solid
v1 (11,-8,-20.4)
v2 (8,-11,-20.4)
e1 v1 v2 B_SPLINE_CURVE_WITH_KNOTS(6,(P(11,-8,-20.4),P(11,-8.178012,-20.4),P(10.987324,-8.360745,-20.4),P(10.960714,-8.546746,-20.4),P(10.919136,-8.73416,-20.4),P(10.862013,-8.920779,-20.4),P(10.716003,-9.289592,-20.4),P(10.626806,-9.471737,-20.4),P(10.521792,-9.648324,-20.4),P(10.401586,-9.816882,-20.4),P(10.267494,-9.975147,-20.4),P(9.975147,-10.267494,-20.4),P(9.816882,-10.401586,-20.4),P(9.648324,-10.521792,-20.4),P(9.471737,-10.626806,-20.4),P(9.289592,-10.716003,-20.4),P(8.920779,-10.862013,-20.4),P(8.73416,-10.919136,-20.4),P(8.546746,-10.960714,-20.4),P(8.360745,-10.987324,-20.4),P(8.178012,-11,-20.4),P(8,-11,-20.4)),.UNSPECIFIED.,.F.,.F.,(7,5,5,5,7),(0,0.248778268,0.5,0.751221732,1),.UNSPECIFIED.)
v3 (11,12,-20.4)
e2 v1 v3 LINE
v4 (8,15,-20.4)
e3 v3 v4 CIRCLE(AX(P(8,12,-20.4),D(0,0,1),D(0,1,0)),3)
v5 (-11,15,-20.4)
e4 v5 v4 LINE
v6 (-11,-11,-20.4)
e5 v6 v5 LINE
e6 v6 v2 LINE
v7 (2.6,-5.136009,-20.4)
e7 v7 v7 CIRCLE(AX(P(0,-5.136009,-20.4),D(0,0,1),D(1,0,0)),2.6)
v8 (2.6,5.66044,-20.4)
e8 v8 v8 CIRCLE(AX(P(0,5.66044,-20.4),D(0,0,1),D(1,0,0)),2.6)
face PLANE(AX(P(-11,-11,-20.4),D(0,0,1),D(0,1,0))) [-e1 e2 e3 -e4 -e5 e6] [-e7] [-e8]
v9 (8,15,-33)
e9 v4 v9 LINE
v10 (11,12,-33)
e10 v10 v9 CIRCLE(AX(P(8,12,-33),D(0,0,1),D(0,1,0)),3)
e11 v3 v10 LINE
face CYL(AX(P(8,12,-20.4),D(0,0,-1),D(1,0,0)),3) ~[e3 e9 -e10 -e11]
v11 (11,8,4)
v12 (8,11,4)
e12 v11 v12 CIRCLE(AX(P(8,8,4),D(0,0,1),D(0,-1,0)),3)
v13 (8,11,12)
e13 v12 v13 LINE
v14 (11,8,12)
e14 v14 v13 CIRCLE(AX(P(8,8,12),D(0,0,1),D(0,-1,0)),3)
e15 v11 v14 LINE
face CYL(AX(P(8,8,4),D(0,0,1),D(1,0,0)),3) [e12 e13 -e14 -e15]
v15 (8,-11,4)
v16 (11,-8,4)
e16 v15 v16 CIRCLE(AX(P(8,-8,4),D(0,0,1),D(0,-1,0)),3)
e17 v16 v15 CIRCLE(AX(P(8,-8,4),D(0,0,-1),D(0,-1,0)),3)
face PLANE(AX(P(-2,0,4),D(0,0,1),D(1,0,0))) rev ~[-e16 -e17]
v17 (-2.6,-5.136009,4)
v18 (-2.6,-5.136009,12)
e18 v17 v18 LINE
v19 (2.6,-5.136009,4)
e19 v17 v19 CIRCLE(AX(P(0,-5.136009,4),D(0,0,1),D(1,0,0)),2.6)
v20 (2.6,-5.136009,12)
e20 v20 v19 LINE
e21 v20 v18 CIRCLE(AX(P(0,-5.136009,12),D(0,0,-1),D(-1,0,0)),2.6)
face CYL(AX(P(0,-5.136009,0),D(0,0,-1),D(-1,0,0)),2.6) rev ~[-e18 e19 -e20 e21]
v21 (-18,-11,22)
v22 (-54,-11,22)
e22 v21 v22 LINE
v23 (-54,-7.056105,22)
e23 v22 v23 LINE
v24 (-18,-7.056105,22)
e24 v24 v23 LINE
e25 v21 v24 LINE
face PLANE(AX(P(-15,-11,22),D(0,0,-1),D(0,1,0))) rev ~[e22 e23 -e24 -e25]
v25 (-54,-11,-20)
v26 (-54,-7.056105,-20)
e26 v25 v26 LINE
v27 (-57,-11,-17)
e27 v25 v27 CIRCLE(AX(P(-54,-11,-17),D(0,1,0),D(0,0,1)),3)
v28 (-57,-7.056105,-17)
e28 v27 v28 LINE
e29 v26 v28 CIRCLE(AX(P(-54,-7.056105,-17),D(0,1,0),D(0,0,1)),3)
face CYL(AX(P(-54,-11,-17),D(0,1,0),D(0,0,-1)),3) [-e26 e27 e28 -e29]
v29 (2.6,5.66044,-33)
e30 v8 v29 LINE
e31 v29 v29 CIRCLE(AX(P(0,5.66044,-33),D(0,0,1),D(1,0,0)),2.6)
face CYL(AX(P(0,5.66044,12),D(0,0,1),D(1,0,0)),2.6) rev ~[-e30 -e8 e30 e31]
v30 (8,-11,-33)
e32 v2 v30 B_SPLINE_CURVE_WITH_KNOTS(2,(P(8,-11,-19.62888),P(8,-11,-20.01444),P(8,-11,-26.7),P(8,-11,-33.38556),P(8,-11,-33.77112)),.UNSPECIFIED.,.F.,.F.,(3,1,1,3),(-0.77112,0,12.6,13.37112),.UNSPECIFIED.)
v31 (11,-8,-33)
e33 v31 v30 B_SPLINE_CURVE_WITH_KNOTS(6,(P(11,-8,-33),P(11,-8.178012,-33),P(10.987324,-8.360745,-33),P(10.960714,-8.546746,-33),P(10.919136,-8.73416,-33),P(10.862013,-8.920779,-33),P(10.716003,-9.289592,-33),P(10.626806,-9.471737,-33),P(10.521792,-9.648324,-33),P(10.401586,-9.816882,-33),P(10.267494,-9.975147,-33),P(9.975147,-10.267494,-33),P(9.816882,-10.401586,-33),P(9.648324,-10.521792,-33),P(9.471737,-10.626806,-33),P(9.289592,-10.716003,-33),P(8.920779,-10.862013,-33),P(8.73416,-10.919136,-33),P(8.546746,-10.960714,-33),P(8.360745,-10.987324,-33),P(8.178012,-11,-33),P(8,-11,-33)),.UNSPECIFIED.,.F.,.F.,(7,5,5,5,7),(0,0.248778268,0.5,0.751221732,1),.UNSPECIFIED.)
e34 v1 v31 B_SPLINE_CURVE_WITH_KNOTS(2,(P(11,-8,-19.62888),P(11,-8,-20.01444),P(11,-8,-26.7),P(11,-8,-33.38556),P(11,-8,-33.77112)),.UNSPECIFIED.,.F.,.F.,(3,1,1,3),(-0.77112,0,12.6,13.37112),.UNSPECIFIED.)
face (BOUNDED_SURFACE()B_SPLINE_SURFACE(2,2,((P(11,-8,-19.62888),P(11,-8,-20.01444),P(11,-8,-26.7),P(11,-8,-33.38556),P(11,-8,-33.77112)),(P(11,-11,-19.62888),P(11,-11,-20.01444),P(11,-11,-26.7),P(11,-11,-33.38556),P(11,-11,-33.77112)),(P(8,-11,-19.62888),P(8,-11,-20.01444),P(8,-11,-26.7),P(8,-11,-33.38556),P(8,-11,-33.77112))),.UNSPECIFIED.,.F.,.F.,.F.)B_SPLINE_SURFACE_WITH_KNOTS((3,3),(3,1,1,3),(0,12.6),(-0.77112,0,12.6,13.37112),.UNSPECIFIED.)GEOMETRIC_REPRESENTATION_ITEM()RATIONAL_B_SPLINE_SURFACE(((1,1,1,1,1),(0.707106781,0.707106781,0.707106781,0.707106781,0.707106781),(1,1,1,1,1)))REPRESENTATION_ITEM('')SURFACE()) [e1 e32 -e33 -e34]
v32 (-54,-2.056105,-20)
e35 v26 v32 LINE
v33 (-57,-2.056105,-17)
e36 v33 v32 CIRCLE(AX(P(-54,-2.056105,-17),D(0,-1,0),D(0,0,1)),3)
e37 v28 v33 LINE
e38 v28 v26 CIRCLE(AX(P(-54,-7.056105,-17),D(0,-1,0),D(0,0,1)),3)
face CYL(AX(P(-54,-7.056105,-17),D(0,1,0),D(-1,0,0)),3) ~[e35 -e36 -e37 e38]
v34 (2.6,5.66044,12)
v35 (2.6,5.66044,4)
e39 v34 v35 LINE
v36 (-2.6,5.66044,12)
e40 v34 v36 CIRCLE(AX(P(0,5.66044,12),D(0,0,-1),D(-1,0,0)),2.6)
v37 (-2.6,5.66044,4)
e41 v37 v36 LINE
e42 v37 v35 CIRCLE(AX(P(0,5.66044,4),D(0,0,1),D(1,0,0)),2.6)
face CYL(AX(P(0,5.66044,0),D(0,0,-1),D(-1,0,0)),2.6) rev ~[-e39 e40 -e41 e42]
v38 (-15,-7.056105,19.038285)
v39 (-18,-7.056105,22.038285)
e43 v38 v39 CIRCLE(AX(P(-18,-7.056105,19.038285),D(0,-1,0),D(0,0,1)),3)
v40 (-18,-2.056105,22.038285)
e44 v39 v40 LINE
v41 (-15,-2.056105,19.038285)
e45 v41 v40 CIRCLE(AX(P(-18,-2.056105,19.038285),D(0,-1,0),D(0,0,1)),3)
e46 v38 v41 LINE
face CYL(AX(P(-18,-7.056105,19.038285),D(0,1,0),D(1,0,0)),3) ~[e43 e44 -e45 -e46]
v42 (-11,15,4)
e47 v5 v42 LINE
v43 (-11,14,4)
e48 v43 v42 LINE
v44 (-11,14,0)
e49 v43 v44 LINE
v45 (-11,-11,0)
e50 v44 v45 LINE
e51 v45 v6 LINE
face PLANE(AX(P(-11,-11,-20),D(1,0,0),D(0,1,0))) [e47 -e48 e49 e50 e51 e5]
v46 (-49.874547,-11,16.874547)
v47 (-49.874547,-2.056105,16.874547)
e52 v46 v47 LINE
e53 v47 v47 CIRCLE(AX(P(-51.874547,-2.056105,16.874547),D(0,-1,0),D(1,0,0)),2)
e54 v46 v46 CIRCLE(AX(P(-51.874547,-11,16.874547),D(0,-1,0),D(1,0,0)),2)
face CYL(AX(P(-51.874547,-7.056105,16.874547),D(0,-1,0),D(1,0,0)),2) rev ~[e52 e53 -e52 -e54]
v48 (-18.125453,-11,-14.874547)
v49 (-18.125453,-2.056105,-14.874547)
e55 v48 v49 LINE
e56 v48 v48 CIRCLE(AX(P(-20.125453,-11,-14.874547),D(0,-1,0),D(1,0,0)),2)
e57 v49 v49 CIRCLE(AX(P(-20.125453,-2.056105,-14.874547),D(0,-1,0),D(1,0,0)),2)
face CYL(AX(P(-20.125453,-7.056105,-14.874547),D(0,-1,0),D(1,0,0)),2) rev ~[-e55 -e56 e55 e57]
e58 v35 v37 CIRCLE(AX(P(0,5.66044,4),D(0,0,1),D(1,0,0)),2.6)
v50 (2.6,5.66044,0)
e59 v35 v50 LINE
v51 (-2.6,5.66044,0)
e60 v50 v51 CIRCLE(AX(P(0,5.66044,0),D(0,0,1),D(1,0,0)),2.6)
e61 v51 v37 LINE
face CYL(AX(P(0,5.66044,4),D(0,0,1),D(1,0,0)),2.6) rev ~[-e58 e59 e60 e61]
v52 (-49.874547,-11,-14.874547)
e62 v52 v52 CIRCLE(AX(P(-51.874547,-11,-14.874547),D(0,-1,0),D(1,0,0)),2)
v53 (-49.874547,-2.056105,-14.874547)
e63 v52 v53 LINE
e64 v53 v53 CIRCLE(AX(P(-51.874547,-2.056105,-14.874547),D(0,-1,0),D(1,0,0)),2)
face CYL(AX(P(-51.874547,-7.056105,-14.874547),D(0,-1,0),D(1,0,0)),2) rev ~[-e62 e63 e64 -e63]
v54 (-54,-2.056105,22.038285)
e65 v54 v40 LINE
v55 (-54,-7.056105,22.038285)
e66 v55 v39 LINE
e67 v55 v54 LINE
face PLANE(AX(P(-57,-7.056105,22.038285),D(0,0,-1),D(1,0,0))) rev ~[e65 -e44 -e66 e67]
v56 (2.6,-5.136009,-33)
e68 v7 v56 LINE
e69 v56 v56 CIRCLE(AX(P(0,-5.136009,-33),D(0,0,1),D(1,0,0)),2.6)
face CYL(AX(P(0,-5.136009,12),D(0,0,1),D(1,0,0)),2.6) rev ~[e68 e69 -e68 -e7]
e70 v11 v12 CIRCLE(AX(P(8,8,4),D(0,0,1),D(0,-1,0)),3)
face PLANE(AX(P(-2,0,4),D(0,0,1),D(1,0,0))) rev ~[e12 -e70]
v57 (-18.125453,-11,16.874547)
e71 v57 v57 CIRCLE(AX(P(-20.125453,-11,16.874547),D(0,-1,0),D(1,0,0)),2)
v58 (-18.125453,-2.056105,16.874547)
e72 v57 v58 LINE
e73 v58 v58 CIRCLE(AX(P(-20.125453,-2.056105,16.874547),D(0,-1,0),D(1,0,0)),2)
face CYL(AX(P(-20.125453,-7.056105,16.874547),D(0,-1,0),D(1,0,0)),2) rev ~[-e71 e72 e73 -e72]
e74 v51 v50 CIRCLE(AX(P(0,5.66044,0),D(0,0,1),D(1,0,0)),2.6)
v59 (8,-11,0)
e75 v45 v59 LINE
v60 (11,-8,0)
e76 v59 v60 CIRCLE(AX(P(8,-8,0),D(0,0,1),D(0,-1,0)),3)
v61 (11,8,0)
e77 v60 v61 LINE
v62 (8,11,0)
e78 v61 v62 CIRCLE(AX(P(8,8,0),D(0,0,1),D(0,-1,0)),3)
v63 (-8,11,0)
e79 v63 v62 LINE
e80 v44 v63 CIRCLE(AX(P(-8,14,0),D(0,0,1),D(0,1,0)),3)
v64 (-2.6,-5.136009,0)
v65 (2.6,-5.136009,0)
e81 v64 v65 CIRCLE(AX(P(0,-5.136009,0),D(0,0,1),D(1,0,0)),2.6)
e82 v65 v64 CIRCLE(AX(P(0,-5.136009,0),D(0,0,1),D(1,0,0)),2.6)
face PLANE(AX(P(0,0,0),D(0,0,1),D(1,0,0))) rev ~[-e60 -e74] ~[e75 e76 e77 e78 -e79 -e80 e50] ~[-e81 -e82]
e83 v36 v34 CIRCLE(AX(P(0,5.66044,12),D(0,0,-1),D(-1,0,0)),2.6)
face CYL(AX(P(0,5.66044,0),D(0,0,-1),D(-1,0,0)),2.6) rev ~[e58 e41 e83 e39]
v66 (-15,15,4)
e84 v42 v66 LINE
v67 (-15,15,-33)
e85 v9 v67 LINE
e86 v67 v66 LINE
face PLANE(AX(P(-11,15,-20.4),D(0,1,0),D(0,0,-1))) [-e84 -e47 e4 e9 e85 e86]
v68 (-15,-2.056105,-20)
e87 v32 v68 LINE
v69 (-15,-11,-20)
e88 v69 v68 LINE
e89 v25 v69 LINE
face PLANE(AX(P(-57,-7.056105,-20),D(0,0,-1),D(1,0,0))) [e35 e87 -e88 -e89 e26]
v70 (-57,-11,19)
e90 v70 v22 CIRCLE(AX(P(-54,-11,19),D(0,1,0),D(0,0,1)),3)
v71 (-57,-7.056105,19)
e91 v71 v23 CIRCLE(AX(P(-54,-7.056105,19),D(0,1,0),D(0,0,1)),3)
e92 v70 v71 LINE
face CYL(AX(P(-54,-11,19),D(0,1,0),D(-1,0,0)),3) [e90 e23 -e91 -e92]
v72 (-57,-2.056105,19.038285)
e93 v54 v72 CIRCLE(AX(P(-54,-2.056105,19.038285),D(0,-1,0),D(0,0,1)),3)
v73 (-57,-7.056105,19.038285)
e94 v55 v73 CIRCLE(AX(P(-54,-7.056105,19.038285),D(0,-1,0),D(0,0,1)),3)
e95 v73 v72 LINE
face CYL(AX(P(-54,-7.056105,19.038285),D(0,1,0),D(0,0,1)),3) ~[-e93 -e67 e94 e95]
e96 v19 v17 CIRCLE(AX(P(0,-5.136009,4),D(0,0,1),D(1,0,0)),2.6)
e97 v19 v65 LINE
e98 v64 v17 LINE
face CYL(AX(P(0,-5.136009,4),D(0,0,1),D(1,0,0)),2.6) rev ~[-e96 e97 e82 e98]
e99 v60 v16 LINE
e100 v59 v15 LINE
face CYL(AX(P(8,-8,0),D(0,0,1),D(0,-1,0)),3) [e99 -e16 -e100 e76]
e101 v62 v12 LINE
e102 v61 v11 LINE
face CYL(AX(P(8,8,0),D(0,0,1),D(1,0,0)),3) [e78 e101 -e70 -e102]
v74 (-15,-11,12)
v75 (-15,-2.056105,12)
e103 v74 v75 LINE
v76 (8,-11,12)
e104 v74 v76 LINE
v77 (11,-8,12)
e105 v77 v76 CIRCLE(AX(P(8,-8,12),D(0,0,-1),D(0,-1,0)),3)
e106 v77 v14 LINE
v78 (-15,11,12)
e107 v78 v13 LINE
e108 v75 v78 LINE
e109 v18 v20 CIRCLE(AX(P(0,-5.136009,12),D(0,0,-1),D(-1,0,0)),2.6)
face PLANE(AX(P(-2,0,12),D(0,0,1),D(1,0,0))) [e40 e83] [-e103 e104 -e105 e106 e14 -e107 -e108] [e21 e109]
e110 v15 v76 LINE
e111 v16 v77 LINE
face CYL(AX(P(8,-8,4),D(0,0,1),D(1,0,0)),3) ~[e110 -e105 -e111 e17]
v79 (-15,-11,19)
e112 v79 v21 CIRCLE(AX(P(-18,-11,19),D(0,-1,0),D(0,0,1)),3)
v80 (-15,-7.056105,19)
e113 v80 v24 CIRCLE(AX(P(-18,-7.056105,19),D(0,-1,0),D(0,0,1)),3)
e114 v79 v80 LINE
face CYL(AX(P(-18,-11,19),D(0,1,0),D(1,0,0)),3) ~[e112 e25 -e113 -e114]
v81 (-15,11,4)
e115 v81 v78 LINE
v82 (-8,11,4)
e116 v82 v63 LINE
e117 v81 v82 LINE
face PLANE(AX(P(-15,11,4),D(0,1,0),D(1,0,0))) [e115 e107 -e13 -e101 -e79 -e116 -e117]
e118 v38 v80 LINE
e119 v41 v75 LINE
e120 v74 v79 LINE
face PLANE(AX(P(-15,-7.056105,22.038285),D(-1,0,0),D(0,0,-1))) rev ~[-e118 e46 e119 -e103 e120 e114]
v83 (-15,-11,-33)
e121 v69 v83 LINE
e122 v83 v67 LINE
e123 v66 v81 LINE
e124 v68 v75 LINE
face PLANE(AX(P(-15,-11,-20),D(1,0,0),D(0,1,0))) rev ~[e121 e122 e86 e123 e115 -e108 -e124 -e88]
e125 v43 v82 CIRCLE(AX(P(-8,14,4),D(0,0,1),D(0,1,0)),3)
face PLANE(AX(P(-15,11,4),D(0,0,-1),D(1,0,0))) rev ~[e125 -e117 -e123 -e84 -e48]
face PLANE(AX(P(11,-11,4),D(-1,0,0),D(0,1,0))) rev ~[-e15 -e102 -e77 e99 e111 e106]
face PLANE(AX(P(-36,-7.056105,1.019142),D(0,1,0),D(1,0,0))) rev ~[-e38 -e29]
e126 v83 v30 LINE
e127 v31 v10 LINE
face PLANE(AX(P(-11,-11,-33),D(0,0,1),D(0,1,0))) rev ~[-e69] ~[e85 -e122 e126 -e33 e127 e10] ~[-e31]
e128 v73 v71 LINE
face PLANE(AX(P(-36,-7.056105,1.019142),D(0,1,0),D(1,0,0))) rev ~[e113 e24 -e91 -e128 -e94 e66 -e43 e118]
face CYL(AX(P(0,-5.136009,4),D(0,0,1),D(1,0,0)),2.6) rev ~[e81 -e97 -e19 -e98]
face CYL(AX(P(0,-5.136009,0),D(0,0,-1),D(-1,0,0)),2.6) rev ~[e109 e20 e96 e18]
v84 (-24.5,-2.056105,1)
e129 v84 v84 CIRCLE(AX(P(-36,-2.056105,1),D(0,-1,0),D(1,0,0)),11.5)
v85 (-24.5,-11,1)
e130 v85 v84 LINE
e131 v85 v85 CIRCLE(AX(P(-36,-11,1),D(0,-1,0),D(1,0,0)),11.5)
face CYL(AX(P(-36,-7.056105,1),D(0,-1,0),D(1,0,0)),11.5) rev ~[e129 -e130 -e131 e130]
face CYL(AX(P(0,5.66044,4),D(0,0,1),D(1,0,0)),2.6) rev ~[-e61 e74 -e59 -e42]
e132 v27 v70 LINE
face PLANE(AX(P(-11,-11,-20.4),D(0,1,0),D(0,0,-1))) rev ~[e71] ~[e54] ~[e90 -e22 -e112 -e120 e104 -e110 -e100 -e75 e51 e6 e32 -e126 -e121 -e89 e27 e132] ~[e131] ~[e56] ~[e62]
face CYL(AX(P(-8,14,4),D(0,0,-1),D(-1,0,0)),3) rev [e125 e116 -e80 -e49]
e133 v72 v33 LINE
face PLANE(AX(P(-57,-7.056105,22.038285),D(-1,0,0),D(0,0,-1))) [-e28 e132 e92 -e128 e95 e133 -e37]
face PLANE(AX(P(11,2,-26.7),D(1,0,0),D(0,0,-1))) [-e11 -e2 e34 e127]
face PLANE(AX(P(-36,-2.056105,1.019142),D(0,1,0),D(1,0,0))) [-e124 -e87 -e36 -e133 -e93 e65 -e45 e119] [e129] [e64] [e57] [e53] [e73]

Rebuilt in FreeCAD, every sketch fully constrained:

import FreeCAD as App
import Part
import Sketcher


def edges_at(feature, points):
    """Names of the edges that pass closest to the given points."""
    edges = feature.Shape.Edges
    near = lambda p: min(range(len(edges)), key=lambda i: edges[i].distToShape(Part.Vertex(*p))[0])
    return sorted({f"Edge{near(p) + 1}" for p in points})

doc = App.newDocument("Part")
body = doc.addObject("PartDesign::Body", "Body")

# Sketch on XY plane
sketch1 = body.newObject("Sketcher::SketchObject", "Sketch")
sketch1.AttachmentSupport = (doc.getObject("XY_Plane"), [""])
sketch1.MapMode = "FlatFace"
sketch1.addGeometry([
    Part.LineSegment(App.Vector(-11, 11, 0), App.Vector(-11, -11, 0)),
    Part.LineSegment(App.Vector(-11, -11, 0), App.Vector(11, -11, 0)),
    Part.LineSegment(App.Vector(11, -11, 0), App.Vector(11, 11, 0)),
    Part.LineSegment(App.Vector(11, 11, 0), App.Vector(-11, 11, 0)),
], False)
sketch1.addConstraint([
    Sketcher.Constraint("Coincident", 0, 2, 1, 1),
    Sketcher.Constraint("Coincident", 1, 2, 2, 1),
    Sketcher.Constraint("Coincident", 2, 2, 3, 1),
    Sketcher.Constraint("Coincident", 3, 2, 0, 1),
    Sketcher.Constraint("Vertical", 0),
    Sketcher.Constraint("Horizontal", 1),
    Sketcher.Constraint("Vertical", 2),
    Sketcher.Constraint("Horizontal", 3),
    Sketcher.Constraint("Symmetric", 0, 2, 2, 2, -1, 1),
    Sketcher.Constraint("Equal", 3, 0),
    Sketcher.Constraint("DistanceX", 1, 1, 1, 2, 22.0),
])
pad1 = body.newObject("PartDesign::Pad", "Pad")
pad1.Profile = sketch1
pad1.Length = 4

# Sketch on XY plane
sketch2 = body.newObject("Sketcher::SketchObject", "Sketch001")
sketch2.AttachmentSupport = (doc.getObject("XY_Plane"), [""])
sketch2.MapMode = "FlatFace"
sketch2.AttachmentOffset = App.Placement(App.Vector(0, 0, 4), App.Rotation())
sketch2.addGeometry([
    Part.LineSegment(App.Vector(-15, 11, 0), App.Vector(-15, -11, 0)),
    Part.LineSegment(App.Vector(-15, -11, 0), App.Vector(-11, -11, 0)),
    Part.LineSegment(App.Vector(-11, -11, 0), App.Vector(-11, 11, 0)),
    Part.LineSegment(App.Vector(-11, 11, 0), App.Vector(-15, 11, 0)),
], False)
sketch2.addConstraint([
    Sketcher.Constraint("Coincident", 0, 2, 1, 1),
    Sketcher.Constraint("Coincident", 1, 2, 2, 1),
    Sketcher.Constraint("Coincident", 2, 2, 3, 1),
    Sketcher.Constraint("Coincident", 3, 2, 0, 1),
    Sketcher.Constraint("Vertical", 0),
    Sketcher.Constraint("Horizontal", 1),
    Sketcher.Constraint("Vertical", 2),
    Sketcher.Constraint("Horizontal", 3),
    Sketcher.Constraint("DistanceX", 1, 1, 1, 2, 4.0),
    Sketcher.Constraint("DistanceY", 0, 2, 0, 1, 22.0),
    Sketcher.Constraint("DistanceX", 0, 2, -1, 1, 15.0),
    Sketcher.Constraint("DistanceY", 0, 2, -1, 1, 11.0),
])
pad2 = body.newObject("PartDesign::Pad", "Pad001")
pad2.Profile = sketch2
pad2.Length = 24
pad2.Reversed = True

# Sketch on XZ plane
sketch3 = body.newObject("Sketcher::SketchObject", "Sketch002")
sketch3.AttachmentSupport = (doc.getObject("XZ_Plane"), [""])
sketch3.MapMode = "FlatFace"
sketch3.AttachmentOffset = App.Placement(App.Vector(0, 0, -11), App.Rotation())
sketch3.addGeometry([
    Part.LineSegment(App.Vector(-15, -20, 0), App.Vector(-15, 4, 0)),
    Part.LineSegment(App.Vector(-15, 4, 0), App.Vector(-11, 4, 0)),
    Part.LineSegment(App.Vector(-11, 4, 0), App.Vector(-11, -20, 0)),
    Part.LineSegment(App.Vector(-11, -20, 0), App.Vector(-15, -20, 0)),
], False)
sketch3.addConstraint([
    Sketcher.Constraint("Coincident", 0, 2, 1, 1),
    Sketcher.Constraint("Coincident", 1, 2, 2, 1),
    Sketcher.Constraint("Coincident", 2, 2, 3, 1),
    Sketcher.Constraint("Coincident", 3, 2, 0, 1),
    Sketcher.Constraint("Vertical", 0),
    Sketcher.Constraint("Horizontal", 1),
    Sketcher.Constraint("Vertical", 2),
    Sketcher.Constraint("Horizontal", 3),
    Sketcher.Constraint("DistanceX", 1, 1, 1, 2, 4.0),
    Sketcher.Constraint("DistanceY", 0, 1, 0, 2, 24.0),
    Sketcher.Constraint("DistanceX", 0, 2, -1, 1, 15.0),
    Sketcher.Constraint("DistanceY", -1, 1, 0, 2, 4.0),
])
pad3 = body.newObject("PartDesign::Pad", "Pad002")
pad3.Profile = sketch3
pad3.Length = 4
pad3.Reversed = True

# Sketch on YZ plane
sketch4 = body.newObject("Sketcher::SketchObject", "Sketch003")
sketch4.AttachmentSupport = (doc.getObject("YZ_Plane"), [""])
sketch4.MapMode = "FlatFace"
sketch4.AttachmentOffset = App.Placement(App.Vector(0, 0, -11), App.Rotation())
sketch4.addGeometry([
    Part.LineSegment(App.Vector(15, 4, 0), App.Vector(11, 4, 0)),
    Part.LineSegment(App.Vector(11, 4, 0), App.Vector(11, -20, 0)),
    Part.LineSegment(App.Vector(11, -20, 0), App.Vector(15, -20, 0)),
    Part.LineSegment(App.Vector(15, -20, 0), App.Vector(15, 4, 0)),
], False)
sketch4.addConstraint([
    Sketcher.Constraint("Coincident", 0, 2, 1, 1),
    Sketcher.Constraint("Coincident", 1, 2, 2, 1),
    Sketcher.Constraint("Coincident", 2, 2, 3, 1),
    Sketcher.Constraint("Coincident", 3, 2, 0, 1),
    Sketcher.Constraint("Horizontal", 0),
    Sketcher.Constraint("Vertical", 1),
    Sketcher.Constraint("Horizontal", 2),
    Sketcher.Constraint("Vertical", 3),
    Sketcher.Constraint("DistanceX", 0, 2, 0, 1, 4.0),
    Sketcher.Constraint("DistanceY", 1, 2, 1, 1, 24.0),
    Sketcher.Constraint("DistanceX", -1, 1, 0, 2, 11.0),
    Sketcher.Constraint("DistanceY", -1, 1, 0, 2, 4.0),
])
pad4 = body.newObject("PartDesign::Pad", "Pad003")
pad4.Profile = sketch4
pad4.Length = 24
pad4.Reversed = True

# Sketch on YZ plane
sketch5 = body.newObject("Sketcher::SketchObject", "Sketch004")
sketch5.AttachmentSupport = (doc.getObject("YZ_Plane"), [""])
sketch5.MapMode = "FlatFace"
sketch5.AttachmentOffset = App.Placement(App.Vector(0, 0, -15), App.Rotation())
sketch5.addGeometry([
    Part.LineSegment(App.Vector(-7.1, -20, 0), App.Vector(-11, -20, 0)),
    Part.LineSegment(App.Vector(-11, -20, 0), App.Vector(-11, 22, 0)),
    Part.LineSegment(App.Vector(-11, 22, 0), App.Vector(-7.1, 22, 0)),
    Part.LineSegment(App.Vector(-7.1, 22, 0), App.Vector(-7.1, -20, 0)),
], False)
sketch5.addConstraint([
    Sketcher.Constraint("Coincident", 0, 2, 1, 1),
    Sketcher.Constraint("Coincident", 1, 2, 2, 1),
    Sketcher.Constraint("Coincident", 2, 2, 3, 1),
    Sketcher.Constraint("Coincident", 3, 2, 0, 1),
    Sketcher.Constraint("Horizontal", 0),
    Sketcher.Constraint("Vertical", 1),
    Sketcher.Constraint("Horizontal", 2),
    Sketcher.Constraint("Vertical", 3),
    Sketcher.Constraint("DistanceY", 1, 1, 1, 2, 42.0),
    Sketcher.Constraint("DistanceX", 0, 2, -1, 1, 11.0),
    Sketcher.Constraint("DistanceY", 0, 2, -1, 1, 20.0),
    Sketcher.Constraint("DistanceX", 0, 2, 0, 1, 3.943895),
])
pad5 = body.newObject("PartDesign::Pad", "Pad004")
pad5.Profile = sketch5
pad5.Length = 42
pad5.Reversed = True

# Sketch on XZ plane
sketch6 = body.newObject("Sketcher::SketchObject", "Sketch005")
sketch6.AttachmentSupport = (doc.getObject("XZ_Plane"), [""])
sketch6.MapMode = "FlatFace"
sketch6.AttachmentOffset = App.Placement(App.Vector(0, 0, -15), App.Rotation())
sketch6.addGeometry([
    Part.LineSegment(App.Vector(-57, -20, 0), App.Vector(-57, 22, 0)),
    Part.LineSegment(App.Vector(-57, 22, 0), App.Vector(-15, 22, 0)),
    Part.LineSegment(App.Vector(-15, 22, 0), App.Vector(-15, -20, 0)),
    Part.LineSegment(App.Vector(-15, -20, 0), App.Vector(-57, -20, 0)),
], False)
sketch6.addConstraint([
    Sketcher.Constraint("Coincident", 0, 2, 1, 1),
    Sketcher.Constraint("Coincident", 1, 2, 2, 1),
    Sketcher.Constraint("Coincident", 2, 2, 3, 1),
    Sketcher.Constraint("Coincident", 3, 2, 0, 1),
    Sketcher.Constraint("Vertical", 0),
    Sketcher.Constraint("Horizontal", 1),
    Sketcher.Constraint("Vertical", 2),
    Sketcher.Constraint("Horizontal", 3),
    Sketcher.Constraint("Equal", 3, 0),
    Sketcher.Constraint("DistanceX", 1, 1, 1, 2, 42.0),
    Sketcher.Constraint("DistanceX", 0, 2, -1, 1, 57.0),
    Sketcher.Constraint("DistanceY", -1, 1, 0, 2, 22.0),
])
pad6 = body.newObject("PartDesign::Pad", "Pad005")
pad6.Profile = sketch6
pad6.Length = 4

# Sketch on XZ plane
sketch7 = body.newObject("Sketcher::SketchObject", "Sketch006")
sketch7.AttachmentSupport = (doc.getObject("XZ_Plane"), [""])
sketch7.MapMode = "FlatFace"
sketch7.AttachmentOffset = App.Placement(App.Vector(0, 0, 11), App.Rotation())
sketch7.addGeometry(Part.Circle(App.Vector(-36, 1, 0), App.Vector(0, 0, 1), 12), False)
sketch7.addConstraint([
    Sketcher.Constraint("Diameter", 0, 23.0),
    Sketcher.Constraint("DistanceX", 0, 3, -1, 1, 36.0),
    Sketcher.Constraint("DistanceY", -1, 1, 0, 3, 1.0),
])
pocket1 = body.newObject("PartDesign::Pocket", "Pocket")
pocket1.Profile = sketch7
pocket1.Length = 4

# Sketch on XZ plane
sketch8 = body.newObject("Sketcher::SketchObject", "Sketch007")
sketch8.AttachmentSupport = (doc.getObject("XZ_Plane"), [""])
sketch8.MapMode = "FlatFace"
sketch8.AttachmentOffset = App.Placement(App.Vector(0, 0, -15), App.Rotation())
sketch8.addGeometry(Part.Circle(App.Vector(-34, 1, 0), App.Vector(0, 0, 1), 2.6), False)
sketch8.addConstraint([
    Sketcher.Constraint("Diameter", 0, 5.2),
    Sketcher.Constraint("DistanceX", 0, 3, -1, 1, 34.0),
    Sketcher.Constraint("DistanceY", -1, 1, 0, 3, 1.0),
])
pocket2 = body.newObject("PartDesign::Pocket", "Pocket001")
pocket2.Profile = sketch8
pocket2.Length = 4
pocket2.Reversed = True

# Sketch on XY plane
sketch9 = body.newObject("Sketcher::SketchObject", "Sketch008")
sketch9.AttachmentSupport = (doc.getObject("XY_Plane"), [""])
sketch9.MapMode = "FlatFace"
sketch9.AttachmentOffset = App.Placement(App.Vector(0, 0, 4), App.Rotation())
sketch9.addGeometry([
    Part.Circle(App.Vector(0, 5.7, 0), App.Vector(0, 0, 1), 2.6),
    Part.Circle(App.Vector(0, -5.1, 0), App.Vector(0, 0, 1), 2.6),
], False)
sketch9.addConstraint([
    Sketcher.Constraint("Equal", 0, 1),
    Sketcher.Constraint("PointOnObject", 0, 3, -2),
    Sketcher.Constraint("PointOnObject", 1, 3, -2),
    Sketcher.Constraint("Diameter", 0, 5.2),
    Sketcher.Constraint("DistanceY", -1, 1, 0, 3, 5.66044),
    Sketcher.Constraint("DistanceY", 1, 3, -1, 1, 5.136009),
])
pocket3 = body.newObject("PartDesign::Pocket", "Pocket002")
pocket3.Profile = sketch9
pocket3.Length = 4
doc.recompute()

fillet = body.newObject("PartDesign::Fillet", "Fillet")
fillet.Base = (pocket3, edges_at(pocket3, [
    (-11, 2, -20),
    (-11, 11, 2),
    (-15, -9.028, 22),
    (-57, -9.028, -20),
    (-57, -9.028, 22),
    (11, -11, 2),
    (11, 11, 2),
    (-57, 13, 22),
    (-57, 13, -20),
    (-15, 13, 22),
]))
fillet.Radius = 3

# Sketch on XZ plane
sketch10 = body.newObject("Sketcher::SketchObject", "Sketch009")
sketch10.AttachmentSupport = (doc.getObject("XZ_Plane"), [""])
sketch10.MapMode = "FlatFace"
sketch10.AttachmentOffset = App.Placement(App.Vector(0, 0, -15), App.Rotation())
sketch10.addGeometry([
    Part.LineSegment(App.Vector(-40, -4, 0), App.Vector(-40, 6, 0)),
    Part.LineSegment(App.Vector(-40, 6, 0), App.Vector(-28, 6, 0)),
    Part.LineSegment(App.Vector(-28, 6, 0), App.Vector(-28, -4, 0)),
    Part.LineSegment(App.Vector(-28, -4, 0), App.Vector(-40, -4, 0)),
], False)
sketch10.addConstraint([
    Sketcher.Constraint("Coincident", 0, 2, 1, 1),
    Sketcher.Constraint("Coincident", 1, 2, 2, 1),
    Sketcher.Constraint("Coincident", 2, 2, 3, 1),
    Sketcher.Constraint("Coincident", 3, 2, 0, 1),
    Sketcher.Constraint("Vertical", 0),
    Sketcher.Constraint("Horizontal", 1),
    Sketcher.Constraint("Vertical", 2),
    Sketcher.Constraint("Horizontal", 3),
    Sketcher.Constraint("DistanceY", 0, 1, 0, 2, 9.89611),
    Sketcher.Constraint("DistanceX", 1, 1, 1, 2, 11.614384),
    Sketcher.Constraint("DistanceX", 0, 2, -1, 1, 40.06367),
    Sketcher.Constraint("DistanceY", -1, 1, 0, 2, 6.053708),
])
pad7 = body.newObject("PartDesign::Pad", "Pad006")
pad7.Profile = sketch10
pad7.Length = 4

# Sketch on XZ plane
sketch11 = body.newObject("Sketcher::SketchObject", "Sketch010")
sketch11.AttachmentSupport = (doc.getObject("XZ_Plane"), [""])
sketch11.MapMode = "FlatFace"
sketch11.AttachmentOffset = App.Placement(App.Vector(0, 0, -11), App.Rotation())
sketch11.addGeometry(Part.Circle(App.Vector(-36, 1, 0), App.Vector(0, 0, 1), 2.6), False)
sketch11.addConstraint([
    Sketcher.Constraint("Diameter", 0, 5.2),
    Sketcher.Constraint("DistanceX", 0, 3, -1, 1, 36.0),
    Sketcher.Constraint("DistanceY", -1, 1, 0, 3, 1.0),
])
pocket4 = body.newObject("PartDesign::Pocket", "Pocket003")
pocket4.Profile = sketch11
pocket4.Length = 4

# Sketch on XZ plane
sketch12 = body.newObject("Sketcher::SketchObject", "Sketch011")
sketch12.AttachmentSupport = (doc.getObject("XZ_Plane"), [""])
sketch12.MapMode = "FlatFace"
sketch12.AttachmentOffset = App.Placement(App.Vector(0, 0, 11), App.Rotation())
sketch12.addGeometry([
    Part.Circle(App.Vector(-20.1, 16.9, 0), App.Vector(0, 0, 1), 2),
    Part.Circle(App.Vector(-51.9, 16.9, 0), App.Vector(0, 0, 1), 2),
    Part.Circle(App.Vector(-51.9, -14.9, 0), App.Vector(0, 0, 1), 2),
    Part.Circle(App.Vector(-20.1, -14.9, 0), App.Vector(0, 0, 1), 2),
], False)
sketch12.addConstraint([
    Sketcher.Constraint("Equal", 0, 1),
    Sketcher.Constraint("Equal", 1, 2),
    Sketcher.Constraint("Equal", 2, 3),
    Sketcher.Constraint("Horizontal", 0, 3, 1, 3),
    Sketcher.Constraint("Horizontal", 2, 3, 3, 3),
    Sketcher.Constraint("Vertical", 1, 3, 2, 3),
    Sketcher.Constraint("Vertical", 0, 3, 3, 3),
    Sketcher.Constraint("Diameter", 0, 4.0),
    Sketcher.Constraint("DistanceX", 0, 3, -1, 1, 20.125453),
    Sketcher.Constraint("DistanceY", -1, 1, 0, 3, 16.874547),
    Sketcher.Constraint("DistanceX", 1, 3, -1, 1, 51.874547),
    Sketcher.Constraint("DistanceY", 2, 3, -1, 1, 14.874547),
])
pocket5 = body.newObject("PartDesign::Pocket", "Pocket004")
pocket5.Profile = sketch12
pocket5.Type = "ThroughAll"

# Sketch on XZ plane
sketch13 = body.newObject("Sketcher::SketchObject", "Sketch012")
sketch13.AttachmentSupport = (doc.getObject("XZ_Plane"), [""])
sketch13.MapMode = "FlatFace"
sketch13.AttachmentOffset = App.Placement(App.Vector(0, 0, -11), App.Rotation())
sketch13.addGeometry([
    Part.LineSegment(App.Vector(-57, 22, 0), App.Vector(-57, -20, 0)),
    Part.LineSegment(App.Vector(-57, -20, 0), App.Vector(-15, -20, 0)),
    Part.LineSegment(App.Vector(-15, -20, 0), App.Vector(-15, 22, 0)),
    Part.LineSegment(App.Vector(-15, 22, 0), App.Vector(-57, 22, 0)),
], False)
sketch13.addConstraint([
    Sketcher.Constraint("Coincident", 0, 2, 1, 1),
    Sketcher.Constraint("Coincident", 1, 2, 2, 1),
    Sketcher.Constraint("Coincident", 2, 2, 3, 1),
    Sketcher.Constraint("Coincident", 3, 2, 0, 1),
    Sketcher.Constraint("Vertical", 0),
    Sketcher.Constraint("Horizontal", 1),
    Sketcher.Constraint("Vertical", 2),
    Sketcher.Constraint("Horizontal", 3),
    Sketcher.Constraint("Equal", 3, 0),
    Sketcher.Constraint("DistanceX", 1, 1, 1, 2, 42.0),
    Sketcher.Constraint("DistanceX", 0, 2, -1, 1, 57.0),
    Sketcher.Constraint("DistanceY", 0, 2, -1, 1, 20.0),
])
pocket6 = body.newObject("PartDesign::Pocket", "Pocket005")
pocket6.Profile = sketch13
pocket6.Length = 10

# Sketch on XZ plane
sketch14 = body.newObject("Sketcher::SketchObject", "Sketch013")
sketch14.AttachmentSupport = (doc.getObject("XZ_Plane"), [""])
sketch14.MapMode = "FlatFace"
sketch14.AttachmentOffset = App.Placement(App.Vector(0, 0, 7.056105), App.Rotation())
sketch14.addGeometry([
    Part.LineSegment(App.Vector(-57, -20, 0), App.Vector(-57, 22, 0)),
    Part.LineSegment(App.Vector(-57, 22, 0), App.Vector(-15, 22, 0)),
    Part.LineSegment(App.Vector(-15, 22, 0), App.Vector(-15, -20, 0)),
    Part.LineSegment(App.Vector(-15, -20, 0), App.Vector(-57, -20, 0)),
], False)
sketch14.addConstraint([
    Sketcher.Constraint("Coincident", 0, 2, 1, 1),
    Sketcher.Constraint("Coincident", 1, 2, 2, 1),
    Sketcher.Constraint("Coincident", 2, 2, 3, 1),
    Sketcher.Constraint("Coincident", 3, 2, 0, 1),
    Sketcher.Constraint("Vertical", 0),
    Sketcher.Constraint("Horizontal", 1),
    Sketcher.Constraint("Vertical", 2),
    Sketcher.Constraint("Horizontal", 3),
    Sketcher.Constraint("DistanceX", 1, 1, 1, 2, 42.0),
    Sketcher.Constraint("DistanceX", 0, 2, -1, 1, 57.0),
    Sketcher.Constraint("DistanceY", 2, 2, -1, 1, 20.0),
    Sketcher.Constraint("DistanceY", 0, 1, 0, 2, 42.038285),
])
pad8 = body.newObject("PartDesign::Pad", "Pad007")
pad8.Profile = sketch14
pad8.Length = 5
pad8.Reversed = True
doc.recompute()

fillet2 = body.newObject("PartDesign::Fillet", "Fillet001")
fillet2.Base = (pad8, edges_at(pad8, [(-15, -4.556, 22.038)]))
fillet2.Radius = 3
doc.recompute()

fillet3 = body.newObject("PartDesign::Fillet", "Fillet002")
fillet3.Base = (fillet2, edges_at(fillet2, [(-57, -4.556, -20), (-57, -4.556, 22.038)]))
fillet3.Radius = 3

# Sketch on XZ plane
sketch15 = body.newObject("Sketcher::SketchObject", "Sketch014")
sketch15.AttachmentSupport = (doc.getObject("XZ_Plane"), [""])
sketch15.MapMode = "FlatFace"
sketch15.AttachmentOffset = App.Placement(App.Vector(0, 0, 7.056105), App.Rotation())
sketch15.addGeometry([
    Part.Circle(App.Vector(-20.1, 16.9, 0), App.Vector(0, 0, 1), 2),  # 0
    Part.Circle(App.Vector(-51.9, 16.9, 0), App.Vector(0, 0, 1), 2),  # 1
    Part.Circle(App.Vector(-51.9, -14.9, 0), App.Vector(0, 0, 1), 2),  # 2
    Part.Circle(App.Vector(-20.1, -14.9, 0), App.Vector(0, 0, 1), 2),  # 3
    Part.Circle(App.Vector(-36, 1, 0), App.Vector(0, 0, 1), 11.5),  # 4
], False)
sketch15.addConstraint([
    Sketcher.Constraint("Equal", 0, 1),
    Sketcher.Constraint("Equal", 1, 2),
    Sketcher.Constraint("Equal", 2, 3),
    Sketcher.Constraint("Horizontal", 0, 3, 1, 3),
    Sketcher.Constraint("Horizontal", 2, 3, 3, 3),
    Sketcher.Constraint("Vertical", 1, 3, 2, 3),
    Sketcher.Constraint("Vertical", 0, 3, 3, 3),
    Sketcher.Constraint("Diameter", 0, 4.0),
    Sketcher.Constraint("Diameter", 4, 23.0),
    Sketcher.Constraint("DistanceX", 4, 3, -1, 1, 36.0),
    Sketcher.Constraint("DistanceY", -1, 1, 4, 3, 1.0),
    Sketcher.Constraint("DistanceX", 0, 3, -1, 1, 20.125453),
    Sketcher.Constraint("DistanceY", -1, 1, 0, 3, 16.874547),
    Sketcher.Constraint("DistanceX", 1, 3, -1, 1, 51.874547),
    Sketcher.Constraint("DistanceY", 2, 3, -1, 1, 14.874547),
])
pocket7 = body.newObject("PartDesign::Pocket", "Pocket006")
pocket7.Profile = sketch15
pocket7.Length = 5

# Sketch on XY plane
sketch16 = body.newObject("Sketcher::SketchObject", "Sketch015")
sketch16.AttachmentSupport = (doc.getObject("XY_Plane"), [""])
sketch16.MapMode = "FlatFace"
sketch16.AttachmentOffset = App.Placement(App.Vector(0, 0, 4), App.Rotation())
sketch16.addGeometry([
    Part.LineSegment(App.Vector(-15, 11, 0), App.Vector(-15, -11, 0)),
    Part.LineSegment(App.Vector(-15, -11, 0), App.Vector(11, -11, 0)),
    Part.LineSegment(App.Vector(11, -11, 0), App.Vector(11, 11, 0)),
    Part.LineSegment(App.Vector(11, 11, 0), App.Vector(-15, 11, 0)),
], False)
sketch16.addConstraint([
    Sketcher.Constraint("Coincident", 0, 2, 1, 1),
    Sketcher.Constraint("Coincident", 1, 2, 2, 1),
    Sketcher.Constraint("Coincident", 2, 2, 3, 1),
    Sketcher.Constraint("Coincident", 3, 2, 0, 1),
    Sketcher.Constraint("Vertical", 0),
    Sketcher.Constraint("Horizontal", 1),
    Sketcher.Constraint("Vertical", 2),
    Sketcher.Constraint("Horizontal", 3),
    Sketcher.Constraint("DistanceX", 1, 1, 1, 2, 26.0),
    Sketcher.Constraint("DistanceY", 0, 2, 0, 1, 22.0),
    Sketcher.Constraint("DistanceX", 0, 2, -1, 1, 15.0),
    Sketcher.Constraint("DistanceY", 0, 2, -1, 1, 11.0),
])
pad9 = body.newObject("PartDesign::Pad", "Pad008")
pad9.Profile = sketch16
pad9.Length = 8
doc.recompute()

fillet4 = body.newObject("PartDesign::Fillet", "Fillet003")
fillet4.Base = (pad9, edges_at(pad9, [(11, 11, 8)]))
fillet4.Radius = 3
doc.recompute()

fillet5 = body.newObject("PartDesign::Fillet", "Fillet004")
fillet5.Base = (fillet4, edges_at(fillet4, [(11, -11, 8)]))
fillet5.Radius = 3

# Sketch on XZ plane
sketch17 = body.newObject("Sketcher::SketchObject", "Sketch016")
sketch17.AttachmentSupport = (doc.getObject("XZ_Plane"), [""])
sketch17.MapMode = "FlatFace"
sketch17.AttachmentOffset = App.Placement(App.Vector(0, 0, -15), App.Rotation())
sketch17.addGeometry([
    Part.LineSegment(App.Vector(-15, -20, 0), App.Vector(-15, 0, 0)),
    Part.LineSegment(App.Vector(-15, 0, 0), App.Vector(-11, 0, 0)),
    Part.LineSegment(App.Vector(-11, 0, 0), App.Vector(-11, -20, 0)),
    Part.LineSegment(App.Vector(-11, -20, 0), App.Vector(-15, -20, 0)),
], False)
sketch17.addConstraint([
    Sketcher.Constraint("Coincident", 0, 2, 1, 1),
    Sketcher.Constraint("Coincident", 1, 2, 2, 1),
    Sketcher.Constraint("Coincident", 2, 2, 3, 1),
    Sketcher.Constraint("Coincident", 3, 2, 0, 1),
    Sketcher.Constraint("Vertical", 0),
    Sketcher.Constraint("Horizontal", 1),
    Sketcher.Constraint("Vertical", 2),
    Sketcher.Constraint("Horizontal", 3),
    Sketcher.Constraint("PointOnObject", 0, 2, -1),
    Sketcher.Constraint("DistanceX", 1, 1, 1, 2, 4.0),
    Sketcher.Constraint("DistanceY", 0, 1, 0, 2, 20.0),
    Sketcher.Constraint("DistanceX", 0, 2, -1, 1, 15.0),
])
pad10 = body.newObject("PartDesign::Pad", "Pad009")
pad10.Profile = sketch17
pad10.Type = "UpToLast"

# Sketch on XY plane
sketch18 = body.newObject("Sketcher::SketchObject", "Sketch017")
sketch18.AttachmentSupport = (doc.getObject("XY_Plane"), [""])
sketch18.MapMode = "FlatFace"
sketch18.AttachmentOffset = App.Placement(App.Vector(0, 0, -20), App.Rotation())
sketch18.addGeometry([
    Part.LineSegment(App.Vector(-11, 15, 0), App.Vector(-11, -11, 0)),
    Part.LineSegment(App.Vector(-11, -11, 0), App.Vector(-15, -11, 0)),
    Part.LineSegment(App.Vector(-15, -11, 0), App.Vector(-15, 15, 0)),
    Part.LineSegment(App.Vector(-15, 15, 0), App.Vector(-11, 15, 0)),
], False)
sketch18.addConstraint([
    Sketcher.Constraint("Coincident", 0, 2, 1, 1),
    Sketcher.Constraint("Coincident", 1, 2, 2, 1),
    Sketcher.Constraint("Coincident", 2, 2, 3, 1),
    Sketcher.Constraint("Coincident", 3, 2, 0, 1),
    Sketcher.Constraint("Vertical", 0),
    Sketcher.Constraint("Horizontal", 1),
    Sketcher.Constraint("Vertical", 2),
    Sketcher.Constraint("Horizontal", 3),
    Sketcher.Constraint("DistanceX", 1, 2, 1, 1, 4.0),
    Sketcher.Constraint("DistanceY", 0, 2, 0, 1, 26.0),
    Sketcher.Constraint("DistanceX", 0, 2, -1, 1, 11.0),
    Sketcher.Constraint("DistanceY", 0, 2, -1, 1, 11.0),
])
pad11 = body.newObject("PartDesign::Pad", "Pad010")
pad11.Profile = sketch18
pad11.Length = 13
pad11.Reversed = True

# Sketch on YZ plane
sketch19 = body.newObject("Sketcher::SketchObject", "Sketch018")
sketch19.AttachmentSupport = (doc.getObject("YZ_Plane"), [""])
sketch19.MapMode = "FlatFace"
sketch19.AttachmentOffset = App.Placement(App.Vector(0, 0, -11), App.Rotation())
sketch19.addGeometry([
    Part.LineSegment(App.Vector(15, -20, 0), App.Vector(-11, -20, 0)),
    Part.LineSegment(App.Vector(-11, -20, 0), App.Vector(-11, -33, 0)),
    Part.LineSegment(App.Vector(-11, -33, 0), App.Vector(15, -33, 0)),
    Part.LineSegment(App.Vector(15, -33, 0), App.Vector(15, -20, 0)),
], False)
sketch19.addConstraint([
    Sketcher.Constraint("Coincident", 0, 2, 1, 1),
    Sketcher.Constraint("Coincident", 1, 2, 2, 1),
    Sketcher.Constraint("Coincident", 2, 2, 3, 1),
    Sketcher.Constraint("Coincident", 3, 2, 0, 1),
    Sketcher.Constraint("Horizontal", 0),
    Sketcher.Constraint("Vertical", 1),
    Sketcher.Constraint("Horizontal", 2),
    Sketcher.Constraint("Vertical", 3),
    Sketcher.Constraint("DistanceX", 0, 2, 0, 1, 26.0),
    Sketcher.Constraint("DistanceY", 1, 2, 1, 1, 12.6),
    Sketcher.Constraint("DistanceX", 0, 2, -1, 1, 11.0),
    Sketcher.Constraint("DistanceY", 1, 2, -1, 1, 33.0),
])
pad12 = body.newObject("PartDesign::Pad", "Pad011")
pad12.Profile = sketch19
pad12.Length = 22
doc.recompute()

fillet6 = body.newObject("PartDesign::Fillet", "Fillet005")
fillet6.Base = (pad12, edges_at(pad12, [(11, 15, -26.7)]))
fillet6.Radius = 3
doc.recompute()

fillet7 = body.newObject("PartDesign::Fillet", "Fillet006")
fillet7.Base = (fillet6, edges_at(fillet6, [(11, -11, -26.7)]))
fillet7.Radius = 3

# Sketch on XY plane
sketch20 = body.newObject("Sketcher::SketchObject", "Sketch019")
sketch20.AttachmentSupport = (doc.getObject("XY_Plane"), [""])
sketch20.MapMode = "FlatFace"
sketch20.addGeometry([
    Part.Circle(App.Vector(0, 5.7, 0), App.Vector(0, 0, 1), 2.6),
    Part.Circle(App.Vector(0, -5.1, 0), App.Vector(0, 0, 1), 2.6),
], False)
sketch20.addConstraint([
    Sketcher.Constraint("Equal", 0, 1),
    Sketcher.Constraint("PointOnObject", 0, 3, -2),
    Sketcher.Constraint("PointOnObject", 1, 3, -2),
    Sketcher.Constraint("Diameter", 0, 5.2),
    Sketcher.Constraint("DistanceY", -1, 1, 0, 3, 5.66044),
    Sketcher.Constraint("DistanceY", 1, 3, -1, 1, 5.136009),
])
pocket8 = body.newObject("PartDesign::Pocket", "Pocket007")
pocket8.Profile = sketch20
pocket8.Length = 22
pocket8.Reversed = True

# Sketch on XY plane
sketch21 = body.newObject("Sketcher::SketchObject", "Sketch020")
sketch21.AttachmentSupport = (doc.getObject("XY_Plane"), [""])
sketch21.MapMode = "FlatFace"
sketch21.AttachmentOffset = App.Placement(App.Vector(0, 0, 12), App.Rotation())
sketch21.addGeometry([
    Part.Circle(App.Vector(0, 5.7, 0), App.Vector(0, 0, 1), 2.6),
    Part.Circle(App.Vector(0, -5.1, 0), App.Vector(0, 0, 1), 2.6),
], False)
sketch21.addConstraint([
    Sketcher.Constraint("Equal", 0, 1),
    Sketcher.Constraint("PointOnObject", 0, 3, -2),
    Sketcher.Constraint("PointOnObject", 1, 3, -2),
    Sketcher.Constraint("Diameter", 0, 5.2),
    Sketcher.Constraint("DistanceY", -1, 1, 0, 3, 5.66044),
    Sketcher.Constraint("DistanceY", 1, 3, -1, 1, 5.136009),
])
pocket9 = body.newObject("PartDesign::Pocket", "Pocket008")
pocket9.Profile = sketch21
pocket9.Type = "ThroughAll"

doc.recompute()
